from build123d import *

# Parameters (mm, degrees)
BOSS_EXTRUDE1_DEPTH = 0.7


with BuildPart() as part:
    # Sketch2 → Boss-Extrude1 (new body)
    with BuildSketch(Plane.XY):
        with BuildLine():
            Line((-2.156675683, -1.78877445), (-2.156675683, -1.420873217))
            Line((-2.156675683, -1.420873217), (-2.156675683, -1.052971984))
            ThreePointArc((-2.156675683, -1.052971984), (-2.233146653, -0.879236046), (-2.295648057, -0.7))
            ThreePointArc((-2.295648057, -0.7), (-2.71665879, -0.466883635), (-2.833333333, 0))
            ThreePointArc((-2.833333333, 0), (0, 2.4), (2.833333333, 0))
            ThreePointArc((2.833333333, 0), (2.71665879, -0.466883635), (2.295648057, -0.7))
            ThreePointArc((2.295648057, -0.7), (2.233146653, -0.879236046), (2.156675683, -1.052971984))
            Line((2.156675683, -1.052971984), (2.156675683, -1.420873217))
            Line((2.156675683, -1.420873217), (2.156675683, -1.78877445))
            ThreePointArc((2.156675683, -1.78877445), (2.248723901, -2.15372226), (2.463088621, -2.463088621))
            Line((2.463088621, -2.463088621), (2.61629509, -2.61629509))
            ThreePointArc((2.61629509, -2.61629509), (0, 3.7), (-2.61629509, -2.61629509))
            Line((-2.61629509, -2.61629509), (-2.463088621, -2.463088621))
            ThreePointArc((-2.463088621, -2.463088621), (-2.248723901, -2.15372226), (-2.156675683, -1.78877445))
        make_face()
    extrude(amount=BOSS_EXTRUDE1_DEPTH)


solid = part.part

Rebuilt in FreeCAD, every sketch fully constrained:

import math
import FreeCAD as App
import Part
import Sketcher

V = App.Vector

doc = App.newDocument("Part")
params = doc.addObject("Spreadsheet::Sheet", "Params")
for row, (alias, value) in enumerate([
    ("sketch1_radius", "2.4 mm"),
    ("sketch1_radius2", "3.7 mm"),
    ("pad1_length", "0.7 mm"),
], start=1):
    params.set(f"A{row}", alias)
    params.set(f"B{row}", "=" + value)
    params.setAlias(f"B{row}", alias)

body = doc.addObject("PartDesign::Body", "Body")

# Sketch on XY plane
sketch1 = body.newObject("Sketcher::SketchObject", "Sketch")
sketch1.AttachmentSupport = (doc.getObject("XY_Plane"), [""])
sketch1.MapMode = "FlatFace"
sketch1.addGeometry(Part.LineSegment(V(-2.16, -1.79, 0), V(-2.16, -1.05, 0)), False)
sketch1.addGeometry(Part.ArcOfCircle(Part.Circle(V(0, 0, 0), V(0, 0, 1), 2.4), math.radians(-163.04), math.radians(-153.98)), False)
sketch1.addGeometry(Part.ArcOfCircle(Part.Circle(V(-2.24, -0.1, 0), V(0, 0, 1), 0.6), math.radians(171), math.radians(265)), False)
sketch1.addGeometry(Part.ArcOfCircle(Part.Circle(V(0, -0.47, 0), V(0, 0, 1), 2.87), math.radians(9), math.radians(171)), False)
sketch1.addGeometry(Part.ArcOfCircle(Part.Circle(V(2.24, -0.1, 0), V(0, 0, 1), 0.6), math.radians(-85), math.radians(9)), False)
sketch1.addGeometry(Part.ArcOfCircle(Part.Circle(V(0, 0, 0), V(0, 0, 1), 2.4), math.radians(-26.02), math.radians(-16.96)), False)
sketch1.addGeometry(Part.LineSegment(V(2.16, -1.05, 0), V(2.16, -1.79, 0)), False)
sketch1.addGeometry(Part.ArcOfCircle(Part.Circle(V(3.21, -1.72, 0), V(0, 0, 1), 1.05), math.radians(-176), math.radians(-135)), False)
sketch1.addGeometry(Part.LineSegment(V(2.46, -2.46, 0), V(2.62, -2.62, 0)), False)
sketch1.addGeometry(Part.ArcOfCircle(Part.Circle(V(0, 0, 0), V(0, 0, 1), 3.7), math.radians(-45), math.radians(225)), False)
sketch1.addGeometry(Part.LineSegment(V(-2.62, -2.62, 0), V(-2.46, -2.46, 0)), False)
sketch1.addGeometry(Part.ArcOfCircle(Part.Circle(V(-3.21, -1.72, 0), V(0, 0, 1), 1.05), math.radians(-45), math.radians(-4)), False)
sketch1.addConstraint(Sketcher.Constraint("Coincident", 0, 2, 1, 2))
sketch1.addConstraint(Sketcher.Constraint("Coincident", 1, 1, 2, 2))
sketch1.addConstraint(Sketcher.Constraint("Tangent", 2, 1, 3, 2))
sketch1.addConstraint(Sketcher.Constraint("Tangent", 3, 1, 4, 2))
sketch1.addConstraint(Sketcher.Constraint("Coincident", 4, 1, 5, 2))
sketch1.addConstraint(Sketcher.Constraint("Coincident", 5, 1, 6, 1))
sketch1.addConstraint(Sketcher.Constraint("Coincident", 6, 2, 7, 1))
sketch1.addConstraint(Sketcher.Constraint("Tangent", 7, 2, 8, 1))
sketch1.addConstraint(Sketcher.Constraint("Coincident", 8, 2, 9, 1))
sketch1.addConstraint(Sketcher.Constraint("Coincident", 9, 2, 10, 1))
sketch1.addConstraint(Sketcher.Constraint("Tangent", 10, 2, 11, 1))
sketch1.addConstraint(Sketcher.Constraint("Coincident", 11, 2, 0, 1))
sketch1.addConstraint(Sketcher.Constraint("Vertical", 0))
sketch1.addConstraint(Sketcher.Constraint("Vertical", 6))
sketch1.addConstraint(Sketcher.Constraint("Coincident", 1, 3, -1, 1))
sketch1.addConstraint(Sketcher.Constraint("Coincident", 5, 3, -1, 1))
sketch1.addConstraint(Sketcher.Constraint("Coincident", 9, 3, -1, 1))
sketch1.addConstraint(Sketcher.Constraint("Equal", 2, 4))
sketch1.addConstraint(Sketcher.Constraint("Equal", 1, 5))
sketch1.addConstraint(Sketcher.Constraint("Equal", 7, 11))
sketch1.addConstraint(Sketcher.Constraint("Symmetric", 2, 1, 3, 1, -1, 1))
sketch1.addConstraint(Sketcher.Constraint("Symmetric", 7, 3, 11, 3, -2))
sketch1.addConstraint(Sketcher.Constraint("PointOnObject", 3, 3, -2))
sketch1.addConstraint(Sketcher.Constraint("Perpendicular", 8, 10))
sketch1.addConstraint(Sketcher.Constraint("Horizontal", 0, 2, 5, 1))
sketch1.addConstraint(Sketcher.Constraint("Horizontal", 8, 2, 9, 2))
sketch1.addConstraint(Sketcher.Constraint("Radius", 1, 2.4))
sketch1.addConstraint(Sketcher.Constraint("Radius", 9, 3.7))
sketch1.addConstraint(Sketcher.Constraint("DistanceY", 1, 1, -1, 1, 0.7))
sketch1.addConstraint(Sketcher.Constraint("Radius", 2, 0.603493))
sketch1.addConstraint(Sketcher.Constraint("Radius", 3, 2.872454))
sketch1.addConstraint(Sketcher.Constraint("Radius", 7, 1.054388))
sketch1.addConstraint(Sketcher.Constraint("DistanceY", 0, 1, 0, 2, 0.735802))
sketch1.addConstraint(Sketcher.Constraint("DistanceY", 0, 2, -1, 1, 1.052972))
sketch1.addConstraint(Sketcher.Constraint("DistanceX", -1, 1, 7, 2, 2.463089))
sketch1.setExpression("Constraints[26]", "Params.sketch1_radius")
sketch1.setExpression("Constraints[27]", "Params.sketch1_radius2")
pad1 = body.newObject("PartDesign::Pad", "Pad")
pad1.Profile = sketch1
pad1.setExpression("Length", "Params.pad1_length")

doc.recompute()
